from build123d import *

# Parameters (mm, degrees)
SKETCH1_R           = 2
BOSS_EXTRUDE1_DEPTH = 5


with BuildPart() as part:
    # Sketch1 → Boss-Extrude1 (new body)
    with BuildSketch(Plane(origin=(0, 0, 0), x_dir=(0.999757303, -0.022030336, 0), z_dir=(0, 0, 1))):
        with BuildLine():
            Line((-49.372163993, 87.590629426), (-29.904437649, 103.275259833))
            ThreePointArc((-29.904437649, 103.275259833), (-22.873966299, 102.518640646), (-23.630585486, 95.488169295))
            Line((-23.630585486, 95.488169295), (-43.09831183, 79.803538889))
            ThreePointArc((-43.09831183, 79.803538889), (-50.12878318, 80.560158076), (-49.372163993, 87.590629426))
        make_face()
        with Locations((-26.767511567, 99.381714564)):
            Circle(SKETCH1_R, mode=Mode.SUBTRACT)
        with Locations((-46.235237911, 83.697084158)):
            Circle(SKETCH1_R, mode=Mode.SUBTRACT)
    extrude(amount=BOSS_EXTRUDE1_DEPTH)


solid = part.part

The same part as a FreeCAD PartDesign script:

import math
import FreeCAD as App
import Part
import Sketcher
Q = App.Units.Quantity

doc = App.newDocument("Part")
body = doc.addObject("PartDesign::Body", "Body")

sketch1 = doc.addObject("Sketcher::SketchObject", "Sketch")
body.addObject(sketch1)
sketch1.AttachmentSupport = (doc.XY_Plane, [""])
sketch1.MapMode = "FlatFace"
sketch1.addGeometry(Part.LineSegment(App.Vector(-27.6, 103.9, 0), App.Vector(-47.4, 88.7, 0)), False)
sketch1.addGeometry(Part.ArcOfCircle(Part.Circle(App.Vector(-44.4, 84.7, 0), App.Vector(0, 0, 1), 5), math.radians(128), math.radians(308)), False)
sketch1.addGeometry(Part.LineSegment(App.Vector(-41.3, 80.7, 0), App.Vector(-21.5, 96, 0)), False)
sketch1.addGeometry(Part.ArcOfCircle(Part.Circle(App.Vector(-24.6, 99.9, 0), App.Vector(0, 0, 1), 5), math.radians(-52), math.radians(128)), False)
sketch1.addGeometry(Part.Circle(App.Vector(-44.4, 84.7, 0), App.Vector(0, 0, 1), 2), False)
sketch1.addGeometry(Part.Circle(App.Vector(-24.6, 99.9, 0), App.Vector(0, 0, 1), 2), False)
sketch1.addConstraint(Sketcher.Constraint("Tangent", 0, 2, 1, 1))
sketch1.addConstraint(Sketcher.Constraint("Tangent", 1, 2, 2, 1))
sketch1.addConstraint(Sketcher.Constraint("Tangent", 2, 2, 3, 1))
sketch1.addConstraint(Sketcher.Constraint("Tangent", 3, 2, 0, 1))
sketch1.addConstraint(Sketcher.Constraint("Coincident", 4, 3, 1, 3))
sketch1.addConstraint(Sketcher.Constraint("Coincident", 5, 3, 3, 3))
sketch1.addConstraint(Sketcher.Constraint("Equal", 1, 3))
sketch1.addConstraint(Sketcher.Constraint("Equal", 4, 5))
sketch1.addConstraint(Sketcher.Constraint("Diameter", 4, Q("4 mm")))
sketch1.addConstraint(Sketcher.Constraint("Radius", 1, Q("5 mm")))
sketch1.addConstraint(Sketcher.Constraint("Distance", 0, Q("25 mm")))
sketch1.addConstraint(Sketcher.Constraint("DistanceY", -1, 1, 3, 2, Q("103.909 mm")))
sketch1.addConstraint(Sketcher.Constraint("DistanceX", 1, 3, -1, 1, Q("44.380142 mm")))
sketch1.addConstraint(Sketcher.Constraint("DistanceY", -1, 1, 1, 3, Q("84.695349 mm")))
pad1 = doc.addObject("PartDesign::Pad", "Pad")
body.addObject(pad1)
pad1.Profile = sketch1
pad1.Length = 5

doc.recompute()
